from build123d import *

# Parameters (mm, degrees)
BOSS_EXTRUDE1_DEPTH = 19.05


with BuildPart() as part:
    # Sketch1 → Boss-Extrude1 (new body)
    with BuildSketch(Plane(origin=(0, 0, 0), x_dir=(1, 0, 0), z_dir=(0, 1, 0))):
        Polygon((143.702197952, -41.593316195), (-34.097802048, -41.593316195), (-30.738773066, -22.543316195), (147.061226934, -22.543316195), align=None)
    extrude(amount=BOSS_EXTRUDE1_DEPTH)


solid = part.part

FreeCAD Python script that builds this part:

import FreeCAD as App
import Part
import Sketcher

V = App.Vector
Q = App.Units.Quantity

doc = App.newDocument("Part")
body = doc.addObject("PartDesign::Body", "Body")

# Sketch on XZ plane
sketch1 = doc.addObject("Sketcher::SketchObject", "Sketch")
body.addObject(sketch1)
sketch1.AttachmentSupport = (doc.XZ_Plane, [""])
sketch1.MapMode = "FlatFace"
sketch1.addGeometry([
    Part.LineSegment(V(-34, 42, 0), V(144, 42, 0)),
    Part.LineSegment(V(144, 42, 0), V(147, 23, 0)),
    Part.LineSegment(V(147, 23, 0), V(-31, 23, 0)),
    Part.LineSegment(V(-31, 23, 0), V(-34, 42, 0)),
], False)
sketch1.addConstraint([
    Sketcher.Constraint("Coincident", 0, 2, 1, 1),
    Sketcher.Constraint("Coincident", 1, 2, 2, 1),
    Sketcher.Constraint("Coincident", 2, 2, 3, 1),
    Sketcher.Constraint("Coincident", 3, 2, 0, 1),
    Sketcher.Constraint("Horizontal", 0),
    Sketcher.Constraint("Horizontal", 2),
    Sketcher.Constraint("Parallel", 1, 3),
    Sketcher.Constraint("DistanceX", 0, 1, 0, 2, Q("7 in")),
    Sketcher.Constraint("Angle", 1, Q("-80 deg")),
    Sketcher.Constraint("DistanceY", 1, 2, 0, 2, Q("0.75 in")),
    Sketcher.Constraint("DistanceX", -1, 1, 0, 2, 143.702198),
    Sketcher.Constraint("DistanceY", -1, 1, 0, 2, 41.593316),
])
pad1 = doc.addObject("PartDesign::Pad", "Pad")
body.addObject(pad1)
pad1.Profile = sketch1
pad1.Length = Q("0.75 in")
pad1.Reversed = True

doc.recompute()
